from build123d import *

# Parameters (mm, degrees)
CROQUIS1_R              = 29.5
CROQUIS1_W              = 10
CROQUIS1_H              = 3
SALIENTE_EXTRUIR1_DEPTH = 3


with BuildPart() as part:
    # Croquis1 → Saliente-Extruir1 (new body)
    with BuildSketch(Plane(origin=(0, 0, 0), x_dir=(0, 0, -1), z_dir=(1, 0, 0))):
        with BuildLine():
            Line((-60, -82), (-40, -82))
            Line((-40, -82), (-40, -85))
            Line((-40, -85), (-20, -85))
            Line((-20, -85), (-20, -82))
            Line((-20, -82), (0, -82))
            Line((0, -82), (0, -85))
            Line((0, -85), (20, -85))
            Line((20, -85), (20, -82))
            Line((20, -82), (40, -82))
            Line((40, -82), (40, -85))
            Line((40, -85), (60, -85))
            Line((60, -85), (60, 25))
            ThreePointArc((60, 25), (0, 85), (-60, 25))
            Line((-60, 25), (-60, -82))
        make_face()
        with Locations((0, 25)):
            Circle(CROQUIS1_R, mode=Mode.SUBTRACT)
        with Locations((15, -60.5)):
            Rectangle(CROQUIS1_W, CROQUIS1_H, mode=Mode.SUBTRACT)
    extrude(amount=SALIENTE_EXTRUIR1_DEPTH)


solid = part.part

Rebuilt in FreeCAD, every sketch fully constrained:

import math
import FreeCAD as App
import Part
import Sketcher
from FreeCAD import Vector

doc = App.newDocument("Part")
body = doc.addObject("PartDesign::Body", "Body")

# Sketch on YZ plane
sketch1 = body.newObject("Sketcher::SketchObject", "Sketch")
sketch1.AttachmentSupport = (doc.getObject("YZ_Plane"), [""])
sketch1.MapMode = "FlatFace"
sketch1.addGeometry([
    Part.LineSegment(Vector(-82, 60, 0), Vector(-82, 40, 0)),  # 0
    Part.LineSegment(Vector(-82, 40, 0), Vector(-85, 40, 0)),  # 1
    Part.LineSegment(Vector(-85, 40, 0), Vector(-85, 20, 0)),  # 2
    Part.LineSegment(Vector(-85, 20, 0), Vector(-82, 20, 0)),  # 3
    Part.LineSegment(Vector(-82, 20, 0), Vector(-82, 0, 0)),  # 4
    Part.LineSegment(Vector(-82, 0, 0), Vector(-85, 0, 0)),  # 5
    Part.LineSegment(Vector(-85, 0, 0), Vector(-85, -20, 0)),  # 6
    Part.LineSegment(Vector(-85, -20, 0), Vector(-82, -20, 0)),  # 7
    Part.LineSegment(Vector(-82, -20, 0), Vector(-82, -40, 0)),  # 8
    Part.LineSegment(Vector(-82, -40, 0), Vector(-85, -40, 0)),  # 9
    Part.LineSegment(Vector(-85, -40, 0), Vector(-85, -60, 0)),  # 10
    Part.LineSegment(Vector(-85, -60, 0), Vector(25, -60, 0)),  # 11
    Part.ArcOfCircle(Part.Circle(Vector(25, 0, 0), Vector(0, 0, 1), 60), math.radians(-90), math.radians(90)),  # 12
    Part.LineSegment(Vector(25, 60, 0), Vector(-82, 60, 0)),  # 13
    Part.LineSegment(Vector(-62, -20, 0), Vector(-62, -10, 0)),  # 14
    Part.LineSegment(Vector(-62, -10, 0), Vector(-59, -10, 0)),  # 15
    Part.LineSegment(Vector(-59, -10, 0), Vector(-59, -20, 0)),  # 16
    Part.LineSegment(Vector(-59, -20, 0), Vector(-62, -20, 0)),  # 17
    Part.Circle(Vector(25, 0, 0), Vector(0, 0, 1), 29.5),  # 18
], False)
sketch1.addConstraint([
    Sketcher.Constraint("Coincident", 0, 2, 1, 1),
    Sketcher.Constraint("Coincident", 1, 2, 2, 1),
    Sketcher.Constraint("Coincident", 2, 2, 3, 1),
    Sketcher.Constraint("Coincident", 3, 2, 4, 1),
    Sketcher.Constraint("Coincident", 4, 2, 5, 1),
    Sketcher.Constraint("Coincident", 5, 2, 6, 1),
    Sketcher.Constraint("Coincident", 6, 2, 7, 1),
    Sketcher.Constraint("Coincident", 7, 2, 8, 1),
    Sketcher.Constraint("Coincident", 8, 2, 9, 1),
    Sketcher.Constraint("Coincident", 9, 2, 10, 1),
    Sketcher.Constraint("Coincident", 10, 2, 11, 1),
    Sketcher.Constraint("Tangent", 11, 2, 12, 1),
    Sketcher.Constraint("Tangent", 12, 2, 13, 1),
    Sketcher.Constraint("Coincident", 13, 2, 0, 1),
    Sketcher.Constraint("Coincident", 14, 2, 15, 1),
    Sketcher.Constraint("Coincident", 15, 2, 16, 1),
    Sketcher.Constraint("Coincident", 16, 2, 17, 1),
    Sketcher.Constraint("Coincident", 17, 2, 14, 1),
    Sketcher.Constraint("Vertical", 0),
    Sketcher.Constraint("Horizontal", 1),
    Sketcher.Constraint("Vertical", 2),
    Sketcher.Constraint("Horizontal", 3),
    Sketcher.Constraint("Vertical", 4),
    Sketcher.Constraint("Horizontal", 5),
    Sketcher.Constraint("Vertical", 6),
    Sketcher.Constraint("Horizontal", 7),
    Sketcher.Constraint("Vertical", 8),
    Sketcher.Constraint("Horizontal", 9),
    Sketcher.Constraint("Vertical", 10),
    Sketcher.Constraint("Horizontal", 11),
    Sketcher.Constraint("Horizontal", 13),
    Sketcher.Constraint("Vertical", 14),
    Sketcher.Constraint("Horizontal", 15),
    Sketcher.Constraint("Vertical", 16),
    Sketcher.Constraint("Horizontal", 17),
    Sketcher.Constraint("Coincident", 18, 3, 12, 3),
    Sketcher.Constraint("Symmetric", 2, 2, 6, 2, -1),
    Sketcher.Constraint("Symmetric", 0, 2, 8, 2, -1),
    Sketcher.Constraint("PointOnObject", 12, 3, -1),
    Sketcher.Constraint("PointOnObject", 4, 2, -1),
    Sketcher.Constraint("Horizontal", 7, 2, 16, 2),
    Sketcher.Constraint("Vertical", 0, 2, 3, 2),
    Sketcher.Constraint("Vertical", 6, 2, 9, 2),
    Sketcher.Constraint("Equal", 9, 15),
    Sketcher.Constraint("Equal", 0, 2),
    Sketcher.Constraint("Equal", 2, 4),
    Sketcher.Constraint("Diameter", 18, 59.0),
    Sketcher.Constraint("Radius", 12, 60.0),
    Sketcher.Constraint("DistanceX", 1, 2, 1, 1, 3.0),
    Sketcher.Constraint("DistanceX", 11, 1, 11, 2, 110.0),
    Sketcher.Constraint("DistanceY", 14, 1, 14, 2, 10.0),
    Sketcher.Constraint("DistanceX", -1, 1, 12, 3, 25.0),
    Sketcher.Constraint("DistanceX", 14, 2, -1, 1, 62.0),
])
pad1 = body.newObject("PartDesign::Pad", "Pad")
pad1.Profile = sketch1
pad1.Length = 3

doc.recompute()
